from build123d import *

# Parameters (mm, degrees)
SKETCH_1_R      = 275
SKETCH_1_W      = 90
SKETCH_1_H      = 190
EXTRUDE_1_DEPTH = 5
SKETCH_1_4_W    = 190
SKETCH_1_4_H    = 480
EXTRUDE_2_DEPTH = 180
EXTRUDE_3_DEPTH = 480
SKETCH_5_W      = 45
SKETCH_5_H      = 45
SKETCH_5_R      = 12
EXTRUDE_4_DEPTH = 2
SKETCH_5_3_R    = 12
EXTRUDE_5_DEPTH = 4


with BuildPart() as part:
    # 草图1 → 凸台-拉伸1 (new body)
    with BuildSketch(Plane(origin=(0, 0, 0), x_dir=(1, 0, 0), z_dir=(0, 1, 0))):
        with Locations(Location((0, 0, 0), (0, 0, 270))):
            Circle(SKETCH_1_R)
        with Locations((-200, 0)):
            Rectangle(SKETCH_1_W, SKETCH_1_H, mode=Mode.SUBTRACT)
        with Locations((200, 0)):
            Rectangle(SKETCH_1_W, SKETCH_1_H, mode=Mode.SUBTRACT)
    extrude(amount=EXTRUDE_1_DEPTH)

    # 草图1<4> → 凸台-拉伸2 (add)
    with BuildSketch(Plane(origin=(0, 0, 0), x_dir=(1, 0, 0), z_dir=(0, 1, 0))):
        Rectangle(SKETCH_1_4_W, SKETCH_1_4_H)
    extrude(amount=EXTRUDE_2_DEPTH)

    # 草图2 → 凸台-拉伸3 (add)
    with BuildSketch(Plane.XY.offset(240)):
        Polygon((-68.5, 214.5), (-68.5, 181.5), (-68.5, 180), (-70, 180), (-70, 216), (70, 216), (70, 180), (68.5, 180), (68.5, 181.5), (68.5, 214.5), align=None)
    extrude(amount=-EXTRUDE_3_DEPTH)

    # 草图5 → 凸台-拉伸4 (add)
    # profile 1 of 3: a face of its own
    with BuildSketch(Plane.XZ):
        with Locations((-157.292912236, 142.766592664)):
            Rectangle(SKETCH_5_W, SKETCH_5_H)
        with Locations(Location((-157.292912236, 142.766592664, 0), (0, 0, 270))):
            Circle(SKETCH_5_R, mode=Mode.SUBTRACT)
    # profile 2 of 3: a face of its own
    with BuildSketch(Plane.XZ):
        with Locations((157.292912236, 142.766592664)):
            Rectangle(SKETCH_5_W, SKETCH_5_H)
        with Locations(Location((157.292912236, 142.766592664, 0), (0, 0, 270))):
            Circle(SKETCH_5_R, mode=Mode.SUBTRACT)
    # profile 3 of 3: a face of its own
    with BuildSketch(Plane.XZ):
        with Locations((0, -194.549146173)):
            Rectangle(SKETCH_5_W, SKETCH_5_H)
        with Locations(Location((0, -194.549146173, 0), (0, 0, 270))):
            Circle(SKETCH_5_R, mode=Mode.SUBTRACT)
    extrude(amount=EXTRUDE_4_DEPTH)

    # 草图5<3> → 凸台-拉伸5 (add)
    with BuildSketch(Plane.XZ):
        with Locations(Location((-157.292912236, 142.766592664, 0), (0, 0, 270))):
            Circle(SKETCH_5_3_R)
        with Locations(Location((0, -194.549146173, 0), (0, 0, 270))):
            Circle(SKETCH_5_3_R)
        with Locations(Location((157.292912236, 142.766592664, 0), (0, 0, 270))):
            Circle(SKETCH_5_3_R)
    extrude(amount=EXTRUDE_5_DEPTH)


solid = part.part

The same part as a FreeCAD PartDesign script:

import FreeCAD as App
import Part
import Sketcher
from FreeCAD import Vector

doc = App.newDocument("Part")
body = doc.addObject("PartDesign::Body", "Body")

sketch1 = body.newObject("Sketcher::SketchObject", "Sketch")
sketch1.AttachmentSupport = (doc.getObject("XZ_Plane"), [""])
sketch1.MapMode = "FlatFace"
sketch1.addGeometry(Part.Circle(Vector(0, 0, 0), Vector(0, 0, 1), 275), False)
sketch1.addGeometry(Part.LineSegment(Vector(-155, 95, 0), Vector(-245, 95, 0)), False)
sketch1.addGeometry(Part.LineSegment(Vector(-245, 95, 0), Vector(-245, -95, 0)), False)
sketch1.addGeometry(Part.LineSegment(Vector(-245, -95, 0), Vector(-155, -95, 0)), False)
sketch1.addGeometry(Part.LineSegment(Vector(-155, -95, 0), Vector(-155, 95, 0)), False)
sketch1.addGeometry(Part.LineSegment(Vector(245, 95, 0), Vector(155, 95, 0)), False)
sketch1.addGeometry(Part.LineSegment(Vector(155, 95, 0), Vector(155, -95, 0)), False)
sketch1.addGeometry(Part.LineSegment(Vector(155, -95, 0), Vector(245, -95, 0)), False)
sketch1.addGeometry(Part.LineSegment(Vector(245, -95, 0), Vector(245, 95, 0)), False)
sketch1.addConstraint(Sketcher.Constraint("Coincident", 1, 2, 2, 1))
sketch1.addConstraint(Sketcher.Constraint("Coincident", 2, 2, 3, 1))
sketch1.addConstraint(Sketcher.Constraint("Coincident", 3, 2, 4, 1))
sketch1.addConstraint(Sketcher.Constraint("Coincident", 4, 2, 1, 1))
sketch1.addConstraint(Sketcher.Constraint("Coincident", 5, 2, 6, 1))
sketch1.addConstraint(Sketcher.Constraint("Coincident", 6, 2, 7, 1))
sketch1.addConstraint(Sketcher.Constraint("Coincident", 7, 2, 8, 1))
sketch1.addConstraint(Sketcher.Constraint("Coincident", 8, 2, 5, 1))
sketch1.addConstraint(Sketcher.Constraint("Horizontal", 1))
sketch1.addConstraint(Sketcher.Constraint("Vertical", 2))
sketch1.addConstraint(Sketcher.Constraint("Horizontal", 3))
sketch1.addConstraint(Sketcher.Constraint("Vertical", 4))
sketch1.addConstraint(Sketcher.Constraint("Horizontal", 5))
sketch1.addConstraint(Sketcher.Constraint("Vertical", 6))
sketch1.addConstraint(Sketcher.Constraint("Horizontal", 7))
sketch1.addConstraint(Sketcher.Constraint("Vertical", 8))
sketch1.addConstraint(Sketcher.Constraint("Coincident", 0, 3, -1, 1))
sketch1.addConstraint(Sketcher.Constraint("Symmetric", 3, 2, 5, 2, -1, 1))
sketch1.addConstraint(Sketcher.Constraint("Symmetric", 1, 2, 7, 2, -1, 1))
sketch1.addConstraint(Sketcher.Constraint("Horizontal", 4, 2, 5, 2))
sketch1.addConstraint(Sketcher.Constraint("Diameter", 0, 550.0))
sketch1.addConstraint(Sketcher.Constraint("DistanceX", 1, 2, 1, 1, 90.0))
sketch1.addConstraint(Sketcher.Constraint("DistanceY", 2, 2, 2, 1, 190.0))
sketch1.addConstraint(Sketcher.Constraint("DistanceX", 1, 2, -1, 1, 245.0))
pad1 = body.newObject("PartDesign::Pad", "Pad")
pad1.Profile = sketch1
pad1.Length = 5
pad1.Reversed = True

sketch2 = body.newObject("Sketcher::SketchObject", "Sketch001")
sketch2.AttachmentSupport = (doc.getObject("XZ_Plane"), [""])
sketch2.MapMode = "FlatFace"
sketch2.addGeometry(Part.LineSegment(Vector(-95, -240, 0), Vector(-95, 240, 0)), False)
sketch2.addGeometry(Part.LineSegment(Vector(-95, 240, 0), Vector(95, 240, 0)), False)
sketch2.addGeometry(Part.LineSegment(Vector(95, 240, 0), Vector(95, -240, 0)), False)
sketch2.addGeometry(Part.LineSegment(Vector(95, -240, 0), Vector(-95, -240, 0)), False)
sketch2.addConstraint(Sketcher.Constraint("Coincident", 0, 2, 1, 1))
sketch2.addConstraint(Sketcher.Constraint("Coincident", 1, 2, 2, 1))
sketch2.addConstraint(Sketcher.Constraint("Coincident", 2, 2, 3, 1))
sketch2.addConstraint(Sketcher.Constraint("Coincident", 3, 2, 0, 1))
sketch2.addConstraint(Sketcher.Constraint("Vertical", 0))
sketch2.addConstraint(Sketcher.Constraint("Horizontal", 1))
sketch2.addConstraint(Sketcher.Constraint("Vertical", 2))
sketch2.addConstraint(Sketcher.Constraint("Horizontal", 3))
sketch2.addConstraint(Sketcher.Constraint("Symmetric", 0, 2, 2, 2, -1, 1))
sketch2.addConstraint(Sketcher.Constraint("DistanceX", 1, 1, 1, 2, 190.0))
sketch2.addConstraint(Sketcher.Constraint("DistanceY", 0, 1, 0, 2, 480.0))
pad2 = body.newObject("PartDesign::Pad", "Pad001")
pad2.Profile = sketch2
pad2.Length = 180
pad2.Reversed = True

sketch3 = body.newObject("Sketcher::SketchObject", "Sketch002")
sketch3.AttachmentSupport = (doc.getObject("XY_Plane"), [""])
sketch3.MapMode = "FlatFace"
sketch3.AttachmentOffset = App.Placement(Vector(0, 0, 240), App.Rotation())
sketch3.addGeometry(Part.LineSegment(Vector(-68.5, 180, 0), Vector(-68.5, 214.5, 0)), False)
sketch3.addGeometry(Part.LineSegment(Vector(-68.5, 214.5, 0), Vector(68.5, 214.5, 0)), False)
sketch3.addGeometry(Part.LineSegment(Vector(68.5, 214.5, 0), Vector(68.5, 180, 0)), False)
sketch3.addGeometry(Part.LineSegment(Vector(68.5, 180, 0), Vector(70, 180, 0)), False)
sketch3.addGeometry(Part.LineSegment(Vector(70, 180, 0), Vector(70, 216, 0)), False)
sketch3.addGeometry(Part.LineSegment(Vector(70, 216, 0), Vector(-70, 216, 0)), False)
sketch3.addGeometry(Part.LineSegment(Vector(-70, 216, 0), Vector(-70, 180, 0)), False)
sketch3.addGeometry(Part.LineSegment(Vector(-70, 180, 0), Vector(-68.5, 180, 0)), False)
sketch3.addConstraint(Sketcher.Constraint("Coincident", 0, 2, 1, 1))
sketch3.addConstraint(Sketcher.Constraint("Coincident", 1, 2, 2, 1))
sketch3.addConstraint(Sketcher.Constraint("Coincident", 2, 2, 3, 1))
sketch3.addConstraint(Sketcher.Constraint("Coincident", 3, 2, 4, 1))
sketch3.addConstraint(Sketcher.Constraint("Coincident", 4, 2, 5, 1))
sketch3.addConstraint(Sketcher.Constraint("Coincident", 5, 2, 6, 1))
sketch3.addConstraint(Sketcher.Constraint("Coincident", 6, 2, 7, 1))
sketch3.addConstraint(Sketcher.Constraint("Coincident", 7, 2, 0, 1))
sketch3.addConstraint(Sketcher.Constraint("Vertical", 0))
sketch3.addConstraint(Sketcher.Constraint("Horizontal", 1))
sketch3.addConstraint(Sketcher.Constraint("Vertical", 2))
sketch3.addConstraint(Sketcher.Constraint("Horizontal", 3))
sketch3.addConstraint(Sketcher.Constraint("Vertical", 4))
sketch3.addConstraint(Sketcher.Constraint("Horizontal", 5))
sketch3.addConstraint(Sketcher.Constraint("Vertical", 6))
sketch3.addConstraint(Sketcher.Constraint("Horizontal", 7))
sketch3.addConstraint(Sketcher.Constraint("Symmetric", 3, 2, 6, 2, -2))
sketch3.addConstraint(Sketcher.Constraint("Equal", 3, 7))
sketch3.addConstraint(Sketcher.Constraint("DistanceX", 1, 1, 1, 2, 137.0))
sketch3.addConstraint(Sketcher.Constraint("DistanceX", 5, 2, 5, 1, 140.0))
sketch3.addConstraint(Sketcher.Constraint("DistanceY", 4, 1, 4, 2, 36.0))
sketch3.addConstraint(Sketcher.Constraint("DistanceY", 0, 1, 0, 2, 34.5))
sketch3.addConstraint(Sketcher.Constraint("DistanceY", -1, 1, 2, 2, 180.0))
pad3 = body.newObject("PartDesign::Pad", "Pad002")
pad3.Profile = sketch3
pad3.Length = 480
pad3.Reversed = True

sketch4 = body.newObject("Sketcher::SketchObject", "Sketch003")
sketch4.AttachmentSupport = (doc.getObject("XZ_Plane"), [""])
sketch4.MapMode = "FlatFace"
sketch4.addGeometry(Part.LineSegment(Vector(-179.792912, 165.266593, 0), Vector(-179.792912, 120.266593, 0)), False)
sketch4.addGeometry(Part.LineSegment(Vector(-179.792912, 120.266593, 0), Vector(-134.792912, 120.266593, 0)), False)
sketch4.addGeometry(Part.LineSegment(Vector(-134.792912, 120.266593, 0), Vector(-134.792912, 165.266593, 0)), False)
sketch4.addGeometry(Part.LineSegment(Vector(-134.792912, 165.266593, 0), Vector(-179.792912, 165.266593, 0)), False)
sketch4.addGeometry(Part.Circle(Vector(-157.292912, 142.766593, 0), Vector(0, 0, 1), 12), False)
sketch4.addGeometry(Part.LineSegment(Vector(134.792912, 165.266593, 0), Vector(134.792912, 120.266593, 0)), False)
sketch4.addGeometry(Part.LineSegment(Vector(134.792912, 120.266593, 0), Vector(179.792912, 120.266593, 0)), False)
sketch4.addGeometry(Part.LineSegment(Vector(179.792912, 120.266593, 0), Vector(179.792912, 165.266593, 0)), False)
sketch4.addGeometry(Part.LineSegment(Vector(179.792912, 165.266593, 0), Vector(134.792912, 165.266593, 0)), False)
sketch4.addGeometry(Part.Circle(Vector(157.292912, 142.766593, 0), Vector(0, 0, 1), 12), False)
sketch4.addGeometry(Part.LineSegment(Vector(-22.5, -172.049146, 0), Vector(-22.5, -217.049146, 0)), False)
sketch4.addGeometry(Part.LineSegment(Vector(-22.5, -217.049146, 0), Vector(22.5, -217.049146, 0)), False)
sketch4.addGeometry(Part.LineSegment(Vector(22.5, -217.049146, 0), Vector(22.5, -172.049146, 0)), False)
sketch4.addGeometry(Part.LineSegment(Vector(22.5, -172.049146, 0), Vector(-22.5, -172.049146, 0)), False)
sketch4.addGeometry(Part.Circle(Vector(0, -194.549146, 0), Vector(0, 0, 1), 12), False)
sketch4.addConstraint(Sketcher.Constraint("Coincident", 0, 2, 1, 1))
sketch4.addConstraint(Sketcher.Constraint("Coincident", 1, 2, 2, 1))
sketch4.addConstraint(Sketcher.Constraint("Coincident", 2, 2, 3, 1))
sketch4.addConstraint(Sketcher.Constraint("Coincident", 3, 2, 0, 1))
sketch4.addConstraint(Sketcher.Constraint("Coincident", 5, 2, 6, 1))
sketch4.addConstraint(Sketcher.Constraint("Coincident", 6, 2, 7, 1))
sketch4.addConstraint(Sketcher.Constraint("Coincident", 7, 2, 8, 1))
sketch4.addConstraint(Sketcher.Constraint("Coincident", 8, 2, 5, 1))
sketch4.addConstraint(Sketcher.Constraint("Coincident", 10, 2, 11, 1))
sketch4.addConstraint(Sketcher.Constraint("Coincident", 11, 2, 12, 1))
sketch4.addConstraint(Sketcher.Constraint("Coincident", 12, 2, 13, 1))
sketch4.addConstraint(Sketcher.Constraint("Coincident", 13, 2, 10, 1))
sketch4.addConstraint(Sketcher.Constraint("Vertical", 0))
sketch4.addConstraint(Sketcher.Constraint("Horizontal", 1))
sketch4.addConstraint(Sketcher.Constraint("Vertical", 2))
sketch4.addConstraint(Sketcher.Constraint("Horizontal", 3))
sketch4.addConstraint(Sketcher.Constraint("Vertical", 5))
sketch4.addConstraint(Sketcher.Constraint("Horizontal", 6))
sketch4.addConstraint(Sketcher.Constraint("Vertical", 7))
sketch4.addConstraint(Sketcher.Constraint("Horizontal", 8))
sketch4.addConstraint(Sketcher.Constraint("Vertical", 10))
sketch4.addConstraint(Sketcher.Constraint("Horizontal", 11))
sketch4.addConstraint(Sketcher.Constraint("Vertical", 12))
sketch4.addConstraint(Sketcher.Constraint("Horizontal", 13))
sketch4.addConstraint(Sketcher.Constraint("Equal", 4, 9))
sketch4.addConstraint(Sketcher.Constraint("Equal", 9, 14))
sketch4.addConstraint(Sketcher.Constraint("Symmetric", 4, 3, 9, 3, -2))
sketch4.addConstraint(Sketcher.Constraint("Symmetric", 1, 2, 5, 2, -2))
sketch4.addConstraint(Sketcher.Constraint("Symmetric", 3, 2, 7, 2, -2))
sketch4.addConstraint(Sketcher.Constraint("PointOnObject", 14, 3, -2))
sketch4.addConstraint(Sketcher.Constraint("Equal", 8, 11))
sketch4.addConstraint(Sketcher.Constraint("Equal", 13, 0))
sketch4.addConstraint(Sketcher.Constraint("Equal", 7, 10))
sketch4.addConstraint(Sketcher.Constraint("Diameter", 4, 24.0))
sketch4.addConstraint(Sketcher.Constraint("DistanceX", 1, 1, 1, 2, 45.0))
sketch4.addConstraint(Sketcher.Constraint("DistanceX", 10, 2, -1, 1, 22.5))
sketch4.addConstraint(Sketcher.Constraint("DistanceX", 0, 2, 4, 3, 22.5))
sketch4.addConstraint(Sketcher.Constraint("DistanceY", 0, 2, 4, 3, 22.5))
sketch4.addConstraint(Sketcher.Constraint("DistanceY", 10, 2, 14, 3, 22.5))
sketch4.addConstraint(Sketcher.Constraint("DistanceY", 14, 3, 4, 3, 337.315739))
sketch4.addConstraint(Sketcher.Constraint("DistanceX", 4, 3, -1, 1, 157.292912))
sketch4.addConstraint(Sketcher.Constraint("DistanceY", -1, 1, 4, 3, 142.766593))
pad4 = body.newObject("PartDesign::Pad", "Pad003")
pad4.Profile = sketch4
pad4.Length = 2

sketch5 = body.newObject("Sketcher::SketchObject", "Sketch004")
sketch5.AttachmentSupport = (doc.getObject("XZ_Plane"), [""])
sketch5.MapMode = "FlatFace"
sketch5.addGeometry(Part.Circle(Vector(-157.292912, 142.766593, 0), Vector(0, 0, 1), 12), False)
sketch5.addGeometry(Part.Circle(Vector(0, -194.549146, 0), Vector(0, 0, 1), 12), False)
sketch5.addGeometry(Part.Circle(Vector(157.292912, 142.766593, 0), Vector(0, 0, 1), 12), False)
sketch5.addConstraint(Sketcher.Constraint("Equal", 0, 1))
sketch5.addConstraint(Sketcher.Constraint("Equal", 1, 2))
sketch5.addConstraint(Sketcher.Constraint("Symmetric", 0, 3, 2, 3, -2))
sketch5.addConstraint(Sketcher.Constraint("PointOnObject", 1, 3, -2))
sketch5.addConstraint(Sketcher.Constraint("Diameter", 0, 24.0))
sketch5.addConstraint(Sketcher.Constraint("DistanceY", 1, 3, 0, 3, 337.315739))
sketch5.addConstraint(Sketcher.Constraint("DistanceX", 0, 3, -1, 1, 157.292912))
sketch5.addConstraint(Sketcher.Constraint("DistanceY", -1, 1, 0, 3, 142.766593))
pad5 = body.newObject("PartDesign::Pad", "Pad004")
pad5.Profile = sketch5
pad5.Length = 4

doc.recompute()
